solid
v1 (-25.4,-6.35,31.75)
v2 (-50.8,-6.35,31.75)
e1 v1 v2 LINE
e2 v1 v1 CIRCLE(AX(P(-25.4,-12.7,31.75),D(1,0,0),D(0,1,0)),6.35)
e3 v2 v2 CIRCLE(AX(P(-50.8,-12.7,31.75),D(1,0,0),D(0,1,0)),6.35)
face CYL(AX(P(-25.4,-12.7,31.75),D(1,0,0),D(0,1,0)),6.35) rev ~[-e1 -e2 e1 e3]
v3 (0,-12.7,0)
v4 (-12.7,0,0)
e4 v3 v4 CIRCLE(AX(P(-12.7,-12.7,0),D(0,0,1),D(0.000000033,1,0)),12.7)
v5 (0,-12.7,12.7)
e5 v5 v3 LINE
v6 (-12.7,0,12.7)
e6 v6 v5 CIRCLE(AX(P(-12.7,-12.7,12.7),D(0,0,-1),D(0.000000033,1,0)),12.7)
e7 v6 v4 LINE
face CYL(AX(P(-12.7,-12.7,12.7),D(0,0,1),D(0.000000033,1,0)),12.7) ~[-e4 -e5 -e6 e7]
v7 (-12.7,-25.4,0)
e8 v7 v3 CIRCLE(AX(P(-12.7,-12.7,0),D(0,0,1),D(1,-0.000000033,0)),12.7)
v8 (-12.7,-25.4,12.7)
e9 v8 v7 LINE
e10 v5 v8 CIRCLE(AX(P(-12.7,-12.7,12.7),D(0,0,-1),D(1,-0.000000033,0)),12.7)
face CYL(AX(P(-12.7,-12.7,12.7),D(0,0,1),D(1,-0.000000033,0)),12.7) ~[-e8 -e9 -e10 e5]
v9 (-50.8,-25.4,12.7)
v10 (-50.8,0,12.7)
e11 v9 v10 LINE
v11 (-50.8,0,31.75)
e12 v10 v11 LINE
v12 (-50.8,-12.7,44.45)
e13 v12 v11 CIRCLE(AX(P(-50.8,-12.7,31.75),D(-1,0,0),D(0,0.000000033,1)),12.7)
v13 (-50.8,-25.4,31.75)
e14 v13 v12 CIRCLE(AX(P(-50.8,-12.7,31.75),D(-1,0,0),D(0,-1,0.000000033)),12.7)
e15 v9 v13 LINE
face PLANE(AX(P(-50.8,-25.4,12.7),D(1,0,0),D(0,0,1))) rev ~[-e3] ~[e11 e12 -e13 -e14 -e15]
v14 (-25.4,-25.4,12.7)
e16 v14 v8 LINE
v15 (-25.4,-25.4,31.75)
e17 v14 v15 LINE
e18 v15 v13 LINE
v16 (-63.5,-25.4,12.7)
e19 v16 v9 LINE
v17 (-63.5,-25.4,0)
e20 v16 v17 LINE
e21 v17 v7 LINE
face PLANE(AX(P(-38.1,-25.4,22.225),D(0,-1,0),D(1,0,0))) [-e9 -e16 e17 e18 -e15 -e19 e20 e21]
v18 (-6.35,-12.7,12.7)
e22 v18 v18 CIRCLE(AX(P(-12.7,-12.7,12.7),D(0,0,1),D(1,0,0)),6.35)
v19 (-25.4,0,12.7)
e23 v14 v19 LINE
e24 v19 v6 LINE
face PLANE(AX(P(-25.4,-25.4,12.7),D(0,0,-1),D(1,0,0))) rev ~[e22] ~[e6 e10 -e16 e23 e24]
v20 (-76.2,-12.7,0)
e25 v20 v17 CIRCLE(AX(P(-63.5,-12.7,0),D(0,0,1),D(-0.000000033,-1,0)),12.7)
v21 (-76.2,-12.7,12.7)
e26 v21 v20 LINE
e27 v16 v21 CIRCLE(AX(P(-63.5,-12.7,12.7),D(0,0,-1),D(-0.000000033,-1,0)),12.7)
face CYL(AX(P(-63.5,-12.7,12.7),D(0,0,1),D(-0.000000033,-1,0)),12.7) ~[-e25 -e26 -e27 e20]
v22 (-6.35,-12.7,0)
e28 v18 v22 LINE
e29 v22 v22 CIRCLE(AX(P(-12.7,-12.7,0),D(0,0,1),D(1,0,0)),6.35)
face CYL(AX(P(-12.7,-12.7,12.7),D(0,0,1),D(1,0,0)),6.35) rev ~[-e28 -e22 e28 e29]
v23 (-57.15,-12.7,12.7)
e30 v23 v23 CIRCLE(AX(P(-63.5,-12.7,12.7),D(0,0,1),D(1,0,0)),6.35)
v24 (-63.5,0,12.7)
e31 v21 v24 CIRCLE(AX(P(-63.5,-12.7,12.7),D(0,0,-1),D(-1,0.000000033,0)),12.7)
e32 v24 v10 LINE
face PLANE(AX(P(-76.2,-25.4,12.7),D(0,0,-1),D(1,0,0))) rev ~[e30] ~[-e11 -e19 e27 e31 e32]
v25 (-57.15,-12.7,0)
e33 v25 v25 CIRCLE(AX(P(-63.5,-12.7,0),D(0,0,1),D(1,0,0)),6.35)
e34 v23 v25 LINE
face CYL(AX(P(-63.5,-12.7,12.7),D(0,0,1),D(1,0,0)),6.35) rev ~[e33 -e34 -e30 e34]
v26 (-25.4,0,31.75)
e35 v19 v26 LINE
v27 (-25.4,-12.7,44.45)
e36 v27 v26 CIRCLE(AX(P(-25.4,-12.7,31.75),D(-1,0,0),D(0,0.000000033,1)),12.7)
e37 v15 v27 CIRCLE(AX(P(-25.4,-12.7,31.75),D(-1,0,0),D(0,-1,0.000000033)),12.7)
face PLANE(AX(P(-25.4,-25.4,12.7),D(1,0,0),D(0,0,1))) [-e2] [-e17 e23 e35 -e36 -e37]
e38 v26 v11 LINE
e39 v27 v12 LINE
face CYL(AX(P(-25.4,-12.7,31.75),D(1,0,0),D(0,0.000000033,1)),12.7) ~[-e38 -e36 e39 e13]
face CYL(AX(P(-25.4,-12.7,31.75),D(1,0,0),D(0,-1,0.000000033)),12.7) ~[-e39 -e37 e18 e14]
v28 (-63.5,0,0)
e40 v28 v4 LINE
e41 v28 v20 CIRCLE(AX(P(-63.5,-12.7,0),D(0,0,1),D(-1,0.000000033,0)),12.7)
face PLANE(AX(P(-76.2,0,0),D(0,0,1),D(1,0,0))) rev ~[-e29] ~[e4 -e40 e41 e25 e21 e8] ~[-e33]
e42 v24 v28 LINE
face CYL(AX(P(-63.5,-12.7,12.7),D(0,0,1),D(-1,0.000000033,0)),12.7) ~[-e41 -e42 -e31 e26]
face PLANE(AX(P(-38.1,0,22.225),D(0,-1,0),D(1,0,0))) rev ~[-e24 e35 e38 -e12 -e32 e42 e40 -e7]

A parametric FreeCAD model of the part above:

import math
import FreeCAD as App
import Part
import Sketcher

V = App.Vector
Q = App.Units.Quantity


def add_polygon(sketch, points):
    """Adds a closed chain of lines whose ends are joined by coincident constraints."""
    first, n = sketch.GeometryCount, len(points)
    for a, b in zip(points, points[1:] + points[:1]):
        sketch.addGeometry(Part.LineSegment(App.Vector(*a, 0), App.Vector(*b, 0)), False)
    for i in range(n):
        sketch.addConstraint(Sketcher.Constraint("Coincident", first + i, 2, first + (i + 1) % n, 1))

doc = App.newDocument("Part")
body = doc.addObject("PartDesign::Body", "Body")

# Sketch on XZ plane
sketch1 = doc.addObject("Sketcher::SketchObject", "Sketch")
body.addObject(sketch1)
sketch1.AttachmentSupport = (doc.XZ_Plane, [""])
sketch1.MapMode = "FlatFace"
add_polygon(sketch1, [(-76, 44), (-76, 0), (0, 0), (0, 44)])  # lines 0-3
sketch1.addConstraint(Sketcher.Constraint("Vertical", 0))
sketch1.addConstraint(Sketcher.Constraint("Horizontal", 1))
sketch1.addConstraint(Sketcher.Constraint("Vertical", 2))
sketch1.addConstraint(Sketcher.Constraint("Horizontal", 3))
sketch1.addConstraint(Sketcher.Constraint("Coincident", 1, 2, -1, 1))
sketch1.addConstraint(Sketcher.Constraint("DistanceX", 1, 1, 1, 2, Q("3 in")))
sketch1.addConstraint(Sketcher.Constraint("DistanceY", 0, 2, 0, 1, Q("1.75 in")))
pad1 = doc.addObject("PartDesign::Pad", "Pad")
body.addObject(pad1)
pad1.Profile = sketch1
pad1.Length = Q("1 in")

# Sketch on XZ plane
sketch2 = doc.addObject("Sketcher::SketchObject", "Sketch001")
body.addObject(sketch2)
sketch2.AttachmentSupport = (doc.XZ_Plane, [""])
sketch2.MapMode = "FlatFace"
sketch2.AttachmentOffset = App.Placement(V(0, 0, 1 * 25.4), App.Rotation())
add_polygon(sketch2, [(-76, 44), (-76, 13), (-51, 13), (-51, 44)])  # lines 0-3
add_polygon(sketch2, [(-25, 44), (-25, 13), (0, 13), (0, 44)])  # lines 4-7
sketch2.addConstraint(Sketcher.Constraint("Vertical", 0))
sketch2.addConstraint(Sketcher.Constraint("Horizontal", 1))
sketch2.addConstraint(Sketcher.Constraint("Vertical", 2))
sketch2.addConstraint(Sketcher.Constraint("Horizontal", 3))
sketch2.addConstraint(Sketcher.Constraint("Vertical", 4))
sketch2.addConstraint(Sketcher.Constraint("Horizontal", 5))
sketch2.addConstraint(Sketcher.Constraint("Vertical", 6))
sketch2.addConstraint(Sketcher.Constraint("Horizontal", 7))
sketch2.addConstraint(Sketcher.Constraint("PointOnObject", 5, 2, -2))
sketch2.addConstraint(Sketcher.Constraint("Horizontal", 1, 2, 4, 2))
sketch2.addConstraint(Sketcher.Constraint("Horizontal", 3, 2, 6, 2))
sketch2.addConstraint(Sketcher.Constraint("Equal", 3, 5))
sketch2.addConstraint(Sketcher.Constraint("DistanceX", 1, 1, 1, 2, Q("1 in")))
sketch2.addConstraint(Sketcher.Constraint("DistanceX", 0, 2, -1, 1, Q("3 in")))
sketch2.addConstraint(Sketcher.Constraint("DistanceY", 0, 2, 0, 1, Q("1.25 in")))
sketch2.addConstraint(Sketcher.Constraint("DistanceY", -1, 1, 0, 2, Q("0.5 in")))
pocket1 = doc.addObject("PartDesign::Pocket", "Pocket")
body.addObject(pocket1)
pocket1.Profile = sketch2
pocket1.Length = Q("1 in")

# Sketch on YZ plane
sketch3 = doc.addObject("Sketcher::SketchObject", "Sketch002")
body.addObject(sketch3)
sketch3.AttachmentSupport = (doc.YZ_Plane, [""])
sketch3.MapMode = "FlatFace"
sketch3.AttachmentOffset = App.Placement(V(0, 0, -1 * 25.4), App.Rotation())
sketch3.addGeometry(Part.ArcOfCircle(Part.Circle(V(-13, 32, 0), V(0, 0, 1), 13), math.radians(90), math.radians(180)), False)
sketch3.addGeometry(Part.LineSegment(V(-13, 44, 0), V(-25, 44, 0)), False)
sketch3.addGeometry(Part.LineSegment(V(-25, 44, 0), V(-25, 32, 0)), False)
sketch3.addGeometry(Part.ArcOfCircle(Part.Circle(V(-13, 32, 0), V(0, 0, 1), 13), math.radians(0), math.radians(90)), False)
sketch3.addGeometry(Part.LineSegment(V(0, 32, 0), V(0, 44, 0)), False)
sketch3.addGeometry(Part.LineSegment(V(0, 44, 0), V(-13, 44, 0)), False)
sketch3.addGeometry(Part.Circle(V(-13, 32, 0), V(0, 0, 1), 6), False)
sketch3.addConstraint(Sketcher.Constraint("Tangent", 0, 1, 1, 1))
sketch3.addConstraint(Sketcher.Constraint("Coincident", 1, 2, 2, 1))
sketch3.addConstraint(Sketcher.Constraint("Tangent", 2, 2, 0, 2))
sketch3.addConstraint(Sketcher.Constraint("Tangent", 3, 1, 4, 1))
sketch3.addConstraint(Sketcher.Constraint("Coincident", 4, 2, 5, 1))
sketch3.addConstraint(Sketcher.Constraint("Tangent", 5, 2, 3, 2))
sketch3.addConstraint(Sketcher.Constraint("Horizontal", 1))
sketch3.addConstraint(Sketcher.Constraint("Vertical", 2))
sketch3.addConstraint(Sketcher.Constraint("Vertical", 4))
sketch3.addConstraint(Sketcher.Constraint("Horizontal", 5))
sketch3.addConstraint(Sketcher.Constraint("Coincident", 3, 3, 0, 3))
sketch3.addConstraint(Sketcher.Constraint("Coincident", 6, 3, 0, 3))
sketch3.addConstraint(Sketcher.Constraint("Equal", 0, 3))
sketch3.addConstraint(Sketcher.Constraint("PointOnObject", 3, 1, -2))
sketch3.addConstraint(Sketcher.Constraint("Diameter", 6, Q("0.5 in")))
sketch3.addConstraint(Sketcher.Constraint("Radius", 0, Q("0.5 in")))
sketch3.addConstraint(Sketcher.Constraint("DistanceY", -1, 1, 0, 3, Q("1.25 in")))
pocket2 = doc.addObject("PartDesign::Pocket", "Pocket001")
body.addObject(pocket2)
pocket2.Profile = sketch3
pocket2.Length = Q("1 in")

# Sketch on XY plane
sketch4 = doc.addObject("Sketcher::SketchObject", "Sketch003")
body.addObject(sketch4)
sketch4.AttachmentSupport = (doc.XY_Plane, [""])
sketch4.MapMode = "FlatFace"
sketch4.AttachmentOffset = App.Placement(V(0, 0, 0.5 * 25.4), App.Rotation())
sketch4.addGeometry(Part.ArcOfCircle(Part.Circle(V(-13, -13, 0), V(0, 0, 1), 13), math.radians(-90), math.radians(0)), False)
sketch4.addGeometry(Part.LineSegment(V(-13, -25, 0), V(0, -25, 0)), False)
sketch4.addGeometry(Part.LineSegment(V(0, -25, 0), V(0, -13, 0)), False)
sketch4.addGeometry(Part.ArcOfCircle(Part.Circle(V(-13, -13, 0), V(0, 0, 1), 13), math.radians(0), math.radians(90)), False)
sketch4.addGeometry(Part.LineSegment(V(0, -13, 0), V(0, 0, 0)), False)
sketch4.addGeometry(Part.LineSegment(V(0, 0, 0), V(-13, 0, 0)), False)
sketch4.addGeometry(Part.Circle(V(-13, -13, 0), V(0, 0, 1), 6), False)
sketch4.addConstraint(Sketcher.Constraint("Tangent", 0, 1, 1, 1))
sketch4.addConstraint(Sketcher.Constraint("Coincident", 1, 2, 2, 1))
sketch4.addConstraint(Sketcher.Constraint("Tangent", 2, 2, 0, 2))
sketch4.addConstraint(Sketcher.Constraint("Tangent", 3, 1, 4, 1))
sketch4.addConstraint(Sketcher.Constraint("Coincident", 4, 2, 5, 1))
sketch4.addConstraint(Sketcher.Constraint("Tangent", 5, 2, 3, 2))
sketch4.addConstraint(Sketcher.Constraint("Horizontal", 1))
sketch4.addConstraint(Sketcher.Constraint("Vertical", 2))
sketch4.addConstraint(Sketcher.Constraint("Vertical", 4))
sketch4.addConstraint(Sketcher.Constraint("Horizontal", 5))
sketch4.addConstraint(Sketcher.Constraint("Coincident", 4, 2, -1, 1))
sketch4.addConstraint(Sketcher.Constraint("Coincident", 3, 3, 0, 3))
sketch4.addConstraint(Sketcher.Constraint("Coincident", 6, 3, 0, 3))
sketch4.addConstraint(Sketcher.Constraint("Equal", 0, 3))
sketch4.addConstraint(Sketcher.Constraint("Diameter", 6, Q("0.5 in")))
sketch4.addConstraint(Sketcher.Constraint("Radius", 0, Q("0.5 in")))
pocket3 = doc.addObject("PartDesign::Pocket", "Pocket002")
body.addObject(pocket3)
pocket3.Profile = sketch4
pocket3.Length = Q("1 in")

# Sketch on XY plane
sketch5 = doc.addObject("Sketcher::SketchObject", "Sketch004")
body.addObject(sketch5)
sketch5.AttachmentSupport = (doc.XY_Plane, [""])
sketch5.MapMode = "FlatFace"
sketch5.AttachmentOffset = App.Placement(V(0, 0, 0.5 * 25.4), App.Rotation())
sketch5.addGeometry(Part.ArcOfCircle(Part.Circle(V(-63, -13, 0), V(0, 0, 1), 13), math.radians(90), math.radians(180)), False)
sketch5.addGeometry(Part.LineSegment(V(-64, 0, 0), V(-76, 0, 0)), False)
sketch5.addGeometry(Part.LineSegment(V(-76, 0, 0), V(-76, -13, 0)), False)
sketch5.addGeometry(Part.ArcOfCircle(Part.Circle(V(-63, -13, 0), V(0, 0, 1), 13), math.radians(-180), math.radians(-90)), False)
sketch5.addGeometry(Part.LineSegment(V(-76, -13, 0), V(-76, -25, 0)), False)
sketch5.addGeometry(Part.LineSegment(V(-76, -25, 0), V(-64, -25, 0)), False)
sketch5.addGeometry(Part.Circle(V(-64, -13, 0), V(0, 0, 1), 6), False)
sketch5.addConstraint(Sketcher.Constraint("Tangent", 0, 1, 1, 1))
sketch5.addConstraint(Sketcher.Constraint("Coincident", 1, 2, 2, 1))
sketch5.addConstraint(Sketcher.Constraint("Tangent", 2, 2, 0, 2))
sketch5.addConstraint(Sketcher.Constraint("Tangent", 3, 1, 4, 1))
sketch5.addConstraint(Sketcher.Constraint("Coincident", 4, 2, 5, 1))
sketch5.addConstraint(Sketcher.Constraint("Tangent", 5, 2, 3, 2))
sketch5.addConstraint(Sketcher.Constraint("Horizontal", 1))
sketch5.addConstraint(Sketcher.Constraint("Vertical", 2))
sketch5.addConstraint(Sketcher.Constraint("Vertical", 4))
sketch5.addConstraint(Sketcher.Constraint("Horizontal", 5))
sketch5.addConstraint(Sketcher.Constraint("Coincident", 3, 3, 0, 3))
sketch5.addConstraint(Sketcher.Constraint("Coincident", 6, 3, 0, 3))
sketch5.addConstraint(Sketcher.Constraint("Equal", 0, 3))
sketch5.addConstraint(Sketcher.Constraint("PointOnObject", 0, 1, -1))
sketch5.addConstraint(Sketcher.Constraint("Diameter", 6, Q("0.5 in")))
sketch5.addConstraint(Sketcher.Constraint("Radius", 0, Q("0.5 in")))
sketch5.addConstraint(Sketcher.Constraint("DistanceX", 1, 2, -1, 1, Q("3 in")))
pocket4 = doc.addObject("PartDesign::Pocket", "Pocket003")
body.addObject(pocket4)
pocket4.Profile = sketch5
pocket4.Length = Q("1 in")

doc.recompute()
